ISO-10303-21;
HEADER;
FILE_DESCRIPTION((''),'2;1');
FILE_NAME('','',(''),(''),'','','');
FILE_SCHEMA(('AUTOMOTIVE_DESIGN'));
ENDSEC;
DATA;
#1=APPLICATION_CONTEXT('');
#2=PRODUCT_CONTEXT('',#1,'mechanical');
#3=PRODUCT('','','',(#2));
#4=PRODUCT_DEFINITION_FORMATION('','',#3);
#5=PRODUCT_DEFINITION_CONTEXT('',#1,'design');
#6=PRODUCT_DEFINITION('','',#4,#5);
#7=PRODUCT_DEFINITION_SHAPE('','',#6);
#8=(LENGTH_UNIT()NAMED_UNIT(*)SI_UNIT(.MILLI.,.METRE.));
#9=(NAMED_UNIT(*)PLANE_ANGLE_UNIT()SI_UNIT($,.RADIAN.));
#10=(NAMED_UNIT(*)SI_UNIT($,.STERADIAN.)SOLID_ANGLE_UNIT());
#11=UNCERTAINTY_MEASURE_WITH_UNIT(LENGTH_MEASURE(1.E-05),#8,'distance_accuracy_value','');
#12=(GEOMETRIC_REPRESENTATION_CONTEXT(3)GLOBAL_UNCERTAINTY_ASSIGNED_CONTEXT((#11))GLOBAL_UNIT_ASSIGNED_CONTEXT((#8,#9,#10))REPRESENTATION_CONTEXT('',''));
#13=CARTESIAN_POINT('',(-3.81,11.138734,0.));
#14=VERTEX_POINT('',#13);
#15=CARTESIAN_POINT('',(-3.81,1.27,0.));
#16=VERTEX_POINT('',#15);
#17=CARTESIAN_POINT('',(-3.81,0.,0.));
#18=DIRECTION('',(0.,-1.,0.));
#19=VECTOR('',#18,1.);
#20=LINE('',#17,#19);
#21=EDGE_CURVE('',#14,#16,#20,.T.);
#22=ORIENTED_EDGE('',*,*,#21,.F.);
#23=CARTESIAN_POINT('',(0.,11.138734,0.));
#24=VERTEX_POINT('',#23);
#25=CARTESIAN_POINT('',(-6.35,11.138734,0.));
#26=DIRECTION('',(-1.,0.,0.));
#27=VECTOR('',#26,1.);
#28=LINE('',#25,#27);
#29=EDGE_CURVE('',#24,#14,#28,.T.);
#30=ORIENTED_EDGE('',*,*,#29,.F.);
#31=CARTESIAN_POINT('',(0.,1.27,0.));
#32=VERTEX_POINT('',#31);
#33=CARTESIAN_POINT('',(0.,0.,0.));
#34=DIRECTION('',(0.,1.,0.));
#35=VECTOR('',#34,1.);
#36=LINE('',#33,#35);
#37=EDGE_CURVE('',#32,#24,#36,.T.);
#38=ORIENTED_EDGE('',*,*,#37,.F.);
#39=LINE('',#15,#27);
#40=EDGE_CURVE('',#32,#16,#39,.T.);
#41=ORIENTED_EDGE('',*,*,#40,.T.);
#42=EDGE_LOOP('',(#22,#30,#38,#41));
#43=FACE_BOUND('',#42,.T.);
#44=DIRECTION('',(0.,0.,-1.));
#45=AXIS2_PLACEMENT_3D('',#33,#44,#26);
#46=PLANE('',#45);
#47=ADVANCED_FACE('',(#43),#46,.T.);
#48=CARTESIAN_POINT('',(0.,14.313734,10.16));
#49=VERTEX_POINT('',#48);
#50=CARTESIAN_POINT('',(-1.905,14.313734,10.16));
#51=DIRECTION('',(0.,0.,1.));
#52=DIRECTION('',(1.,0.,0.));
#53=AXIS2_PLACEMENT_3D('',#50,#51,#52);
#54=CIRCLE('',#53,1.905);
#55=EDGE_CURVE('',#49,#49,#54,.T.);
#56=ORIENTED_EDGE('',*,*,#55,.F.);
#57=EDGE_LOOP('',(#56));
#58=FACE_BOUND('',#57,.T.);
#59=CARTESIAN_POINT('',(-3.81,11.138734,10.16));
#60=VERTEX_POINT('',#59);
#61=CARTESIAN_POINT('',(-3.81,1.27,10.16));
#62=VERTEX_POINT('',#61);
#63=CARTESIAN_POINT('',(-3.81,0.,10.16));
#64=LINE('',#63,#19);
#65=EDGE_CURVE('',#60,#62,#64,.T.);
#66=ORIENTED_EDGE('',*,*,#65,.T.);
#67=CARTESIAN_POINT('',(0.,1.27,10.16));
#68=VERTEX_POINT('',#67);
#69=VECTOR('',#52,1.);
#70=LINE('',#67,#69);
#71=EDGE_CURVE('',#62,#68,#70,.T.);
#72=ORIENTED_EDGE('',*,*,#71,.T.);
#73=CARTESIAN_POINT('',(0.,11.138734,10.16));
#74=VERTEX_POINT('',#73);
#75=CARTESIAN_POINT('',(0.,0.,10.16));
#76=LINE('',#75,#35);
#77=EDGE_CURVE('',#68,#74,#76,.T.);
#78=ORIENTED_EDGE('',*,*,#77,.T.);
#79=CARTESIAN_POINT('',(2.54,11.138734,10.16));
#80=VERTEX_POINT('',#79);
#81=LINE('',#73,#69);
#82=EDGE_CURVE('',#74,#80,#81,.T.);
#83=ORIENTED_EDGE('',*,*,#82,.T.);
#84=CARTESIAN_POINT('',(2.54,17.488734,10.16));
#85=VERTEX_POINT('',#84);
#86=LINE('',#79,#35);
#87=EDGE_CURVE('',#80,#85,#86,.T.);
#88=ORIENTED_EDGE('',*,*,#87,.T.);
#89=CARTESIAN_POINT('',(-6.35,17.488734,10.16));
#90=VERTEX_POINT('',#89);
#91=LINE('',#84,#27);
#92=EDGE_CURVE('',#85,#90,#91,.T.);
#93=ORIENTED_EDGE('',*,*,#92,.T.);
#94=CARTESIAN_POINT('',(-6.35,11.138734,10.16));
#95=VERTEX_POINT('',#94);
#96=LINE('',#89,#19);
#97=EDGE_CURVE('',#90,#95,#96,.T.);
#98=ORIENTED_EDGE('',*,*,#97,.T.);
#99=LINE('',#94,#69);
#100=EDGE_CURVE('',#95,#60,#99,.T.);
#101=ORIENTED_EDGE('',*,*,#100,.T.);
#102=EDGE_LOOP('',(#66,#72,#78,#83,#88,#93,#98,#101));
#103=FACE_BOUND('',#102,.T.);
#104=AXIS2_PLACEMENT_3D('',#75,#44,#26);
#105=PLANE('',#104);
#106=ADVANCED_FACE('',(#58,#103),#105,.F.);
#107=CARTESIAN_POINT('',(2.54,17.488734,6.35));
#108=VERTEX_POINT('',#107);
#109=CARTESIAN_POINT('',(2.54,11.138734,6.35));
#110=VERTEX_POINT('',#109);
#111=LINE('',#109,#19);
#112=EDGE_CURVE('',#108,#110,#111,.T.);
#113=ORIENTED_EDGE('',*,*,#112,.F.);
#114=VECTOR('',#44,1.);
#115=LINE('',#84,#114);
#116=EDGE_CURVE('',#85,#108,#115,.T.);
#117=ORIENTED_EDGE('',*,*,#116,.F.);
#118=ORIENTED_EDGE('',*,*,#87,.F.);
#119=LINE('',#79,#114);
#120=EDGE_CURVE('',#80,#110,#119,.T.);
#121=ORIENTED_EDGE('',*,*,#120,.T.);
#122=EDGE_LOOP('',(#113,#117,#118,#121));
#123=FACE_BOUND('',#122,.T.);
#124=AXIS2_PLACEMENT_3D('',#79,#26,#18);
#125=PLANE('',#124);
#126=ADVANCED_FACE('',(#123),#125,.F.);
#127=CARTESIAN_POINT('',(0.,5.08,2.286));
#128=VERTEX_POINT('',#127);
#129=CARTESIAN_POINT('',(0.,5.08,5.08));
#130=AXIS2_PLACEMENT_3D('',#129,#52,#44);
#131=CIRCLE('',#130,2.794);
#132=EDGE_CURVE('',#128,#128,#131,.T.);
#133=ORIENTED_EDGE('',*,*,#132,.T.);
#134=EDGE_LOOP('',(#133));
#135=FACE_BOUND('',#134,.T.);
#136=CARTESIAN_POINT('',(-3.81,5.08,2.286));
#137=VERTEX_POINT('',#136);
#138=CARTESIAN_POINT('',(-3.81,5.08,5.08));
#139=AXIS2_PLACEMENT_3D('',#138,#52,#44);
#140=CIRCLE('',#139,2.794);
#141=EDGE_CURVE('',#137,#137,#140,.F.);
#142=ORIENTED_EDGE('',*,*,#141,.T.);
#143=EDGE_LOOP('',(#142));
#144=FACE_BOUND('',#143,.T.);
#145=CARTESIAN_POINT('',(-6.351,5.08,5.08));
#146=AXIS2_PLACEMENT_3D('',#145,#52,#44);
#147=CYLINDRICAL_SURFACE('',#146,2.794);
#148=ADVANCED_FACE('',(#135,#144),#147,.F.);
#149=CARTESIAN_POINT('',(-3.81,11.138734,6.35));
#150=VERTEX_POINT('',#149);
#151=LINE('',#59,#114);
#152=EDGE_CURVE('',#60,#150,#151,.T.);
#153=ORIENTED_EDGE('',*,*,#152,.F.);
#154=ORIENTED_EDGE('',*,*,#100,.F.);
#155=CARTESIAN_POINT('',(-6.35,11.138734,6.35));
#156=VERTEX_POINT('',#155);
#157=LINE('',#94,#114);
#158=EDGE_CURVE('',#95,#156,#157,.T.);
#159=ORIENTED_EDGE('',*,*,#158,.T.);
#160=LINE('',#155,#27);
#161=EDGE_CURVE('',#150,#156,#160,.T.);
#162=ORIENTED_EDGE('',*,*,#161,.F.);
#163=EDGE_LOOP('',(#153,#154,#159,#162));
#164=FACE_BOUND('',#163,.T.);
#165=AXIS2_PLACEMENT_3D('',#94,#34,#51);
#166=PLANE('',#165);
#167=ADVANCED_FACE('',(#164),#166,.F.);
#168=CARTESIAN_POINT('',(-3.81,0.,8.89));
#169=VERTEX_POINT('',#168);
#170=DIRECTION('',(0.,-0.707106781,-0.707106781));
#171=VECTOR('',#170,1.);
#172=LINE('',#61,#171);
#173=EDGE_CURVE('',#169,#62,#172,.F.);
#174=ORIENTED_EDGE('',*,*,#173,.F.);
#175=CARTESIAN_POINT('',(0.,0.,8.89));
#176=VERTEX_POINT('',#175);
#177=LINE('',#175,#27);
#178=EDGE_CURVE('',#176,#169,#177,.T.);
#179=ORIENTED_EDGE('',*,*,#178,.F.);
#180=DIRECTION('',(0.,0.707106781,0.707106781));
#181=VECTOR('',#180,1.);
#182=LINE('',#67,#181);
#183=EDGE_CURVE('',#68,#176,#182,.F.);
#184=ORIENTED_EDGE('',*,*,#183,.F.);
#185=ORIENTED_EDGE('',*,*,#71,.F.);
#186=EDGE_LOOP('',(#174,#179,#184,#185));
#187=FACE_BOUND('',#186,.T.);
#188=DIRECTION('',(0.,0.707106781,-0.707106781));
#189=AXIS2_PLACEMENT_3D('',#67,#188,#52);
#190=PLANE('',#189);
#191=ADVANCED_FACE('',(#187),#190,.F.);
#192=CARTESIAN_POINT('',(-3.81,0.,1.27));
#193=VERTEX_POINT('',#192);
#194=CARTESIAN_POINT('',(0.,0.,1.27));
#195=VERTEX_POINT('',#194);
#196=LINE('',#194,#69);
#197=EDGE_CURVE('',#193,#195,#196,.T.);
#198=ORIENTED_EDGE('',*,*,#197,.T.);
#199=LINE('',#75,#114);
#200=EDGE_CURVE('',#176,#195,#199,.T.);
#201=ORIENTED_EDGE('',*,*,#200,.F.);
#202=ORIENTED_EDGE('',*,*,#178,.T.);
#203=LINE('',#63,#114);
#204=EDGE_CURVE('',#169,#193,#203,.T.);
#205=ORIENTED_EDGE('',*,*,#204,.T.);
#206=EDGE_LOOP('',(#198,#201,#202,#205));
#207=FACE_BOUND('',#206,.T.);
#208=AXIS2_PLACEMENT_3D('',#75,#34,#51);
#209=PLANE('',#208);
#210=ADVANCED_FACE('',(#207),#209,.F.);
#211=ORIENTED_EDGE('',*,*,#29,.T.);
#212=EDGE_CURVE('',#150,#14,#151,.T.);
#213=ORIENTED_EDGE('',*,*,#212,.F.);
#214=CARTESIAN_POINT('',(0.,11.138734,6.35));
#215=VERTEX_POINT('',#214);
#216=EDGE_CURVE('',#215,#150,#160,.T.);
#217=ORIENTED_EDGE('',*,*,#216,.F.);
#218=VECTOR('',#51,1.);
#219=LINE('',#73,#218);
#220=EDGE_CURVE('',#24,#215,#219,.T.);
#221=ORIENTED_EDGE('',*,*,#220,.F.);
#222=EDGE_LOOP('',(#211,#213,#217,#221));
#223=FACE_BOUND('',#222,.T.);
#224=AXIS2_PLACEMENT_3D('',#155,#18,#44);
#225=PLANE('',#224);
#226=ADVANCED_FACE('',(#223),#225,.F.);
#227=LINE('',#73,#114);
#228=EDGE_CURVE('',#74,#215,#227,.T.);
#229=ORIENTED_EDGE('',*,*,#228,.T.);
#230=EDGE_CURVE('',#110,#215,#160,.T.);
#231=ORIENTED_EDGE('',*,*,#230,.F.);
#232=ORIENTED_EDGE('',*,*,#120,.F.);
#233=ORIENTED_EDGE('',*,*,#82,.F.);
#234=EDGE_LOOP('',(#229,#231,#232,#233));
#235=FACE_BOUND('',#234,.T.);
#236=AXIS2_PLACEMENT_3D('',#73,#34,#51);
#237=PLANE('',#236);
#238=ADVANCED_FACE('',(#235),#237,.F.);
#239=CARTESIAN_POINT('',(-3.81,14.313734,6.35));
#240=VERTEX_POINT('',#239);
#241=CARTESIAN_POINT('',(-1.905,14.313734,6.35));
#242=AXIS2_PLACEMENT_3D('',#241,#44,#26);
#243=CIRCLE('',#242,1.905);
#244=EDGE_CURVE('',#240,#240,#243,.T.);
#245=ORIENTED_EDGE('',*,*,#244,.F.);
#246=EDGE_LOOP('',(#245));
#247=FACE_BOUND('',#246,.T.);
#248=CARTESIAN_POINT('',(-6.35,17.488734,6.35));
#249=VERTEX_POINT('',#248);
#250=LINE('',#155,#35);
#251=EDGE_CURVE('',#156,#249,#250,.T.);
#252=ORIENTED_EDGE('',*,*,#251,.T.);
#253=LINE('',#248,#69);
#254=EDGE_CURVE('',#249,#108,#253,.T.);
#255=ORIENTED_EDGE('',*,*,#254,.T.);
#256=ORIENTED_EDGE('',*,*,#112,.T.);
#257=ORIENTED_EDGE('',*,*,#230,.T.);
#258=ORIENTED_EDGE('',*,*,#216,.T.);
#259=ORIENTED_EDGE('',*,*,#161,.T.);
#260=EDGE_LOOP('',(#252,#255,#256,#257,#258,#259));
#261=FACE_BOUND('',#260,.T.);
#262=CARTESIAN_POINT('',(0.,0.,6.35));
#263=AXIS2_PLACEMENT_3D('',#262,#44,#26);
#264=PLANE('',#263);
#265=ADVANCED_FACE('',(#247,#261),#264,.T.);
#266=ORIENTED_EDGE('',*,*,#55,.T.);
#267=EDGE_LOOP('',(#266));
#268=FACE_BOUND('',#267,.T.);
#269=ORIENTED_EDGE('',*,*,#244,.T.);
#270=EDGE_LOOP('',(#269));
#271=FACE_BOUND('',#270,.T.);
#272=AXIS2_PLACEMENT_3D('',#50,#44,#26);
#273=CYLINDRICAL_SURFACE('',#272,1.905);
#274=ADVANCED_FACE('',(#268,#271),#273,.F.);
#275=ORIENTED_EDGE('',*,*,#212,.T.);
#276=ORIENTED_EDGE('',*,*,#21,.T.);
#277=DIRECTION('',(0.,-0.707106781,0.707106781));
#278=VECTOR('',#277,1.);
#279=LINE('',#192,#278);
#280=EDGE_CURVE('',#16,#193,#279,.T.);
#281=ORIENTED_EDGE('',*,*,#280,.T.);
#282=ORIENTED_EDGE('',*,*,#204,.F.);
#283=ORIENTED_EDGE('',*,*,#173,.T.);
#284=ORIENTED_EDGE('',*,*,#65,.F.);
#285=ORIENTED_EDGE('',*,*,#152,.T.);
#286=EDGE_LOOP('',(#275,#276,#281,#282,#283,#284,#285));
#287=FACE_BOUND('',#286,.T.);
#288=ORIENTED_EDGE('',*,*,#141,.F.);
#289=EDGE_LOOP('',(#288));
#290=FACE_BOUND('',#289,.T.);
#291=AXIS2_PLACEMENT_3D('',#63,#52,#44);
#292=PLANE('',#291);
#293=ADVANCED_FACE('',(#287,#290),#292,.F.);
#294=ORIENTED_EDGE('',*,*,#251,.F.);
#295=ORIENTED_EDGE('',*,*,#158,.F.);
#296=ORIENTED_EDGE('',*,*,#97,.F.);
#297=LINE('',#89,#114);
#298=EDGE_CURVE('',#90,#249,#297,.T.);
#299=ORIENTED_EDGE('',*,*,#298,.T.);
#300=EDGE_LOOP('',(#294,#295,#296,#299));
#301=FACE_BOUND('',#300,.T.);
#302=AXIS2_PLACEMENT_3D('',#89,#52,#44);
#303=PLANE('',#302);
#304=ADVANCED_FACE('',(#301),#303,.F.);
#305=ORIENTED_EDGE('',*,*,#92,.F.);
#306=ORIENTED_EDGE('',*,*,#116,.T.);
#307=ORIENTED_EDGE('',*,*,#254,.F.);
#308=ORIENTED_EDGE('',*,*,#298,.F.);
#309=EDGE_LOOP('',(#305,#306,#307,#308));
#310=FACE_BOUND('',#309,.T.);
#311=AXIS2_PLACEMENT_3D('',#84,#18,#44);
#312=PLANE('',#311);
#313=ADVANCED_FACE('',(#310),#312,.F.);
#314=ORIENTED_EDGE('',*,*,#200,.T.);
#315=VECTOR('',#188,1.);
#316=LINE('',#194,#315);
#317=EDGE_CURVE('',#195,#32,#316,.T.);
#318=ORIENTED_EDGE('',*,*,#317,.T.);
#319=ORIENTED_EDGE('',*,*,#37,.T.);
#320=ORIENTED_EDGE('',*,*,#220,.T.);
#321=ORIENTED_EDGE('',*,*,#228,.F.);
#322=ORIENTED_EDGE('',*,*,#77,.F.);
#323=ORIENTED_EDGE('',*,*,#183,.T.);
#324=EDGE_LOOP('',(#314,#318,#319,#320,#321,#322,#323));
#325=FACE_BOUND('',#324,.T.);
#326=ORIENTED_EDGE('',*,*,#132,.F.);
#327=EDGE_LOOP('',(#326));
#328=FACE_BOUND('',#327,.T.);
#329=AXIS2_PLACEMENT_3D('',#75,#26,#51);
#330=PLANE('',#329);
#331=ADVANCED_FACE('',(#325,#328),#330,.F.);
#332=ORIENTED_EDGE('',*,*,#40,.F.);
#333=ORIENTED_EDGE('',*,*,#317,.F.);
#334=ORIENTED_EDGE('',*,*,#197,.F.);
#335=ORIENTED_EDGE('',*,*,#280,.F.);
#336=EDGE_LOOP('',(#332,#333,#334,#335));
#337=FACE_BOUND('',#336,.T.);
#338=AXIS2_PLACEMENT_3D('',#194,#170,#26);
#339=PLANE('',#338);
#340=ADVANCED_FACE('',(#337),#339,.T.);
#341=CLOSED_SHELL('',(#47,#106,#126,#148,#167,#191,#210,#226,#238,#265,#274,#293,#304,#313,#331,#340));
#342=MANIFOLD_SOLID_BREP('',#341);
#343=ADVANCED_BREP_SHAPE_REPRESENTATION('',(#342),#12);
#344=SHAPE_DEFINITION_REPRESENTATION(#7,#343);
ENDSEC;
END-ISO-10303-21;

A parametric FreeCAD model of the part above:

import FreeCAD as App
import Part
import Sketcher
from FreeCAD import Vector
Q = App.Units.Quantity


def edges_at(feature, points):
    """Names of the edges that pass closest to the given points."""
    edges = feature.Shape.Edges
    near = lambda p: min(range(len(edges)), key=lambda i: edges[i].distToShape(Part.Vertex(*p))[0])
    return sorted({f"Edge{near(p) + 1}" for p in points})

doc = App.newDocument("Part")
body = doc.addObject("PartDesign::Body", "Body")

sketch1 = body.newObject("Sketcher::SketchObject", "Sketch")
sketch1.AttachmentSupport = (doc.getObject("XY_Plane"), [""])
sketch1.MapMode = "FlatFace"
sketch1.addGeometry(Part.LineSegment(Vector(0, 11.138734, 0), Vector(2.54, 11.138734, 0)), False)
sketch1.addGeometry(Part.LineSegment(Vector(2.54, 11.138734, 0), Vector(2.54, 17.488734, 0)), False)
sketch1.addGeometry(Part.LineSegment(Vector(2.54, 17.488734, 0), Vector(-6.35, 17.488734, 0)), False)
sketch1.addGeometry(Part.LineSegment(Vector(-6.35, 17.488734, 0), Vector(-6.35, 11.138734, 0)), False)
sketch1.addGeometry(Part.LineSegment(Vector(-6.35, 11.138734, 0), Vector(-3.81, 11.138734, 0)), False)
sketch1.addGeometry(Part.LineSegment(Vector(-3.81, 11.138734, 0), Vector(-3.81, 0, 0)), False)
sketch1.addGeometry(Part.LineSegment(Vector(-3.81, 0, 0), Vector(0, 0, 0)), False)
sketch1.addGeometry(Part.LineSegment(Vector(0, 0, 0), Vector(0, 11.138734, 0)), False)
sketch1.addGeometry(Part.Circle(Vector(-1.905, 14.313734, 0), Vector(0, 0, 1), 1.905), False)
sketch1.addConstraint(Sketcher.Constraint("Coincident", 0, 2, 1, 1))
sketch1.addConstraint(Sketcher.Constraint("Coincident", 1, 2, 2, 1))
sketch1.addConstraint(Sketcher.Constraint("Coincident", 2, 2, 3, 1))
sketch1.addConstraint(Sketcher.Constraint("Coincident", 3, 2, 4, 1))
sketch1.addConstraint(Sketcher.Constraint("Coincident", 4, 2, 5, 1))
sketch1.addConstraint(Sketcher.Constraint("Coincident", 5, 2, 6, 1))
sketch1.addConstraint(Sketcher.Constraint("Coincident", 6, 2, 7, 1))
sketch1.addConstraint(Sketcher.Constraint("Coincident", 7, 2, 0, 1))
sketch1.addConstraint(Sketcher.Constraint("Horizontal", 0))
sketch1.addConstraint(Sketcher.Constraint("Vertical", 1))
sketch1.addConstraint(Sketcher.Constraint("Horizontal", 2))
sketch1.addConstraint(Sketcher.Constraint("Vertical", 3))
sketch1.addConstraint(Sketcher.Constraint("Horizontal", 4))
sketch1.addConstraint(Sketcher.Constraint("Vertical", 5))
sketch1.addConstraint(Sketcher.Constraint("Horizontal", 6))
sketch1.addConstraint(Sketcher.Constraint("Vertical", 7))
sketch1.addConstraint(Sketcher.Constraint("Coincident", 6, 2, -1, 1))
sketch1.addConstraint(Sketcher.Constraint("Horizontal", 0, 2, 3, 2))
sketch1.addConstraint(Sketcher.Constraint("Equal", 0, 4))
sketch1.addConstraint(Sketcher.Constraint("Diameter", 8, Q("0.15 in")))
sketch1.addConstraint(Sketcher.Constraint("DistanceX", 0, 1, 0, 2, Q("0.1 in")))
sketch1.addConstraint(Sketcher.Constraint("DistanceX", 2, 2, 2, 1, Q("0.35 in")))
sketch1.addConstraint(Sketcher.Constraint("DistanceY", 1, 1, 1, 2, Q("0.25 in")))
sketch1.addConstraint(Sketcher.Constraint("DistanceX", 8, 3, -1, 1, Q("0.075 in")))
sketch1.addConstraint(Sketcher.Constraint("DistanceY", 0, 2, 8, 3, Q("0.125 in")))
sketch1.addConstraint(Sketcher.Constraint("DistanceY", 5, 2, 5, 1, Q("11.138734 mm")))
pad1 = body.newObject("PartDesign::Pad", "Pad")
pad1.Profile = sketch1
pad1.Length = Q("0.4 in")

sketch2 = body.newObject("Sketcher::SketchObject", "Sketch001")
sketch2.AttachmentSupport = (doc.getObject("YZ_Plane"), [""])
sketch2.MapMode = "FlatFace"
sketch2.addGeometry(Part.Circle(Vector(5.08, 5.08, 0), Vector(0, 0, 1), 2.794), False)
sketch2.addConstraint(Sketcher.Constraint("Diameter", 0, Q("0.22 in")))
sketch2.addConstraint(Sketcher.Constraint("DistanceX", -1, 1, 0, 3, Q("0.2 in")))
sketch2.addConstraint(Sketcher.Constraint("DistanceY", -1, 1, 0, 3, Q("0.2 in")))
pocket1 = body.newObject("PartDesign::Pocket", "Pocket")
pocket1.Profile = sketch2
pocket1.Type = "UpToFirst"
doc.recompute()

chamfer = body.newObject("PartDesign::Chamfer", "Chamfer")
chamfer.Base = (pocket1, edges_at(pocket1, [(-1.905, 0, 0), (-1.905, 0, 10.16)]))
chamfer.Size = Q("0.05 in")

sketch3 = body.newObject("Sketcher::SketchObject", "Sketch002")
sketch3.AttachmentSupport = (doc.getObject("XY_Plane"), [""])
sketch3.MapMode = "FlatFace"
sketch3.addGeometry(Part.LineSegment(Vector(-6.35, 11.138734, 0), Vector(-6.35, 17.488734, 0)), False)
sketch3.addGeometry(Part.LineSegment(Vector(-6.35, 17.488734, 0), Vector(2.54, 17.488734, 0)), False)
sketch3.addGeometry(Part.LineSegment(Vector(2.54, 17.488734, 0), Vector(2.54, 11.138734, 0)), False)
sketch3.addGeometry(Part.LineSegment(Vector(2.54, 11.138734, 0), Vector(-6.35, 11.138734, 0)), False)
sketch3.addConstraint(Sketcher.Constraint("Coincident", 0, 2, 1, 1))
sketch3.addConstraint(Sketcher.Constraint("Coincident", 1, 2, 2, 1))
sketch3.addConstraint(Sketcher.Constraint("Coincident", 2, 2, 3, 1))
sketch3.addConstraint(Sketcher.Constraint("Coincident", 3, 2, 0, 1))
sketch3.addConstraint(Sketcher.Constraint("Vertical", 0))
sketch3.addConstraint(Sketcher.Constraint("Horizontal", 1))
sketch3.addConstraint(Sketcher.Constraint("Vertical", 2))
sketch3.addConstraint(Sketcher.Constraint("Horizontal", 3))
sketch3.addConstraint(Sketcher.Constraint("DistanceX", 1, 1, 1, 2, Q("0.35 in")))
sketch3.addConstraint(Sketcher.Constraint("DistanceY", 0, 1, 0, 2, Q("0.25 in")))
sketch3.addConstraint(Sketcher.Constraint("DistanceX", -1, 1, 1, 2, Q("0.1 in")))
sketch3.addConstraint(Sketcher.Constraint("DistanceY", -1, 1, 0, 2, Q("17.488734 mm")))
pocket2 = body.newObject("PartDesign::Pocket", "Pocket001")
pocket2.Profile = sketch3
pocket2.Length = Q("0.25 in")
pocket2.Reversed = True

doc.recompute()
